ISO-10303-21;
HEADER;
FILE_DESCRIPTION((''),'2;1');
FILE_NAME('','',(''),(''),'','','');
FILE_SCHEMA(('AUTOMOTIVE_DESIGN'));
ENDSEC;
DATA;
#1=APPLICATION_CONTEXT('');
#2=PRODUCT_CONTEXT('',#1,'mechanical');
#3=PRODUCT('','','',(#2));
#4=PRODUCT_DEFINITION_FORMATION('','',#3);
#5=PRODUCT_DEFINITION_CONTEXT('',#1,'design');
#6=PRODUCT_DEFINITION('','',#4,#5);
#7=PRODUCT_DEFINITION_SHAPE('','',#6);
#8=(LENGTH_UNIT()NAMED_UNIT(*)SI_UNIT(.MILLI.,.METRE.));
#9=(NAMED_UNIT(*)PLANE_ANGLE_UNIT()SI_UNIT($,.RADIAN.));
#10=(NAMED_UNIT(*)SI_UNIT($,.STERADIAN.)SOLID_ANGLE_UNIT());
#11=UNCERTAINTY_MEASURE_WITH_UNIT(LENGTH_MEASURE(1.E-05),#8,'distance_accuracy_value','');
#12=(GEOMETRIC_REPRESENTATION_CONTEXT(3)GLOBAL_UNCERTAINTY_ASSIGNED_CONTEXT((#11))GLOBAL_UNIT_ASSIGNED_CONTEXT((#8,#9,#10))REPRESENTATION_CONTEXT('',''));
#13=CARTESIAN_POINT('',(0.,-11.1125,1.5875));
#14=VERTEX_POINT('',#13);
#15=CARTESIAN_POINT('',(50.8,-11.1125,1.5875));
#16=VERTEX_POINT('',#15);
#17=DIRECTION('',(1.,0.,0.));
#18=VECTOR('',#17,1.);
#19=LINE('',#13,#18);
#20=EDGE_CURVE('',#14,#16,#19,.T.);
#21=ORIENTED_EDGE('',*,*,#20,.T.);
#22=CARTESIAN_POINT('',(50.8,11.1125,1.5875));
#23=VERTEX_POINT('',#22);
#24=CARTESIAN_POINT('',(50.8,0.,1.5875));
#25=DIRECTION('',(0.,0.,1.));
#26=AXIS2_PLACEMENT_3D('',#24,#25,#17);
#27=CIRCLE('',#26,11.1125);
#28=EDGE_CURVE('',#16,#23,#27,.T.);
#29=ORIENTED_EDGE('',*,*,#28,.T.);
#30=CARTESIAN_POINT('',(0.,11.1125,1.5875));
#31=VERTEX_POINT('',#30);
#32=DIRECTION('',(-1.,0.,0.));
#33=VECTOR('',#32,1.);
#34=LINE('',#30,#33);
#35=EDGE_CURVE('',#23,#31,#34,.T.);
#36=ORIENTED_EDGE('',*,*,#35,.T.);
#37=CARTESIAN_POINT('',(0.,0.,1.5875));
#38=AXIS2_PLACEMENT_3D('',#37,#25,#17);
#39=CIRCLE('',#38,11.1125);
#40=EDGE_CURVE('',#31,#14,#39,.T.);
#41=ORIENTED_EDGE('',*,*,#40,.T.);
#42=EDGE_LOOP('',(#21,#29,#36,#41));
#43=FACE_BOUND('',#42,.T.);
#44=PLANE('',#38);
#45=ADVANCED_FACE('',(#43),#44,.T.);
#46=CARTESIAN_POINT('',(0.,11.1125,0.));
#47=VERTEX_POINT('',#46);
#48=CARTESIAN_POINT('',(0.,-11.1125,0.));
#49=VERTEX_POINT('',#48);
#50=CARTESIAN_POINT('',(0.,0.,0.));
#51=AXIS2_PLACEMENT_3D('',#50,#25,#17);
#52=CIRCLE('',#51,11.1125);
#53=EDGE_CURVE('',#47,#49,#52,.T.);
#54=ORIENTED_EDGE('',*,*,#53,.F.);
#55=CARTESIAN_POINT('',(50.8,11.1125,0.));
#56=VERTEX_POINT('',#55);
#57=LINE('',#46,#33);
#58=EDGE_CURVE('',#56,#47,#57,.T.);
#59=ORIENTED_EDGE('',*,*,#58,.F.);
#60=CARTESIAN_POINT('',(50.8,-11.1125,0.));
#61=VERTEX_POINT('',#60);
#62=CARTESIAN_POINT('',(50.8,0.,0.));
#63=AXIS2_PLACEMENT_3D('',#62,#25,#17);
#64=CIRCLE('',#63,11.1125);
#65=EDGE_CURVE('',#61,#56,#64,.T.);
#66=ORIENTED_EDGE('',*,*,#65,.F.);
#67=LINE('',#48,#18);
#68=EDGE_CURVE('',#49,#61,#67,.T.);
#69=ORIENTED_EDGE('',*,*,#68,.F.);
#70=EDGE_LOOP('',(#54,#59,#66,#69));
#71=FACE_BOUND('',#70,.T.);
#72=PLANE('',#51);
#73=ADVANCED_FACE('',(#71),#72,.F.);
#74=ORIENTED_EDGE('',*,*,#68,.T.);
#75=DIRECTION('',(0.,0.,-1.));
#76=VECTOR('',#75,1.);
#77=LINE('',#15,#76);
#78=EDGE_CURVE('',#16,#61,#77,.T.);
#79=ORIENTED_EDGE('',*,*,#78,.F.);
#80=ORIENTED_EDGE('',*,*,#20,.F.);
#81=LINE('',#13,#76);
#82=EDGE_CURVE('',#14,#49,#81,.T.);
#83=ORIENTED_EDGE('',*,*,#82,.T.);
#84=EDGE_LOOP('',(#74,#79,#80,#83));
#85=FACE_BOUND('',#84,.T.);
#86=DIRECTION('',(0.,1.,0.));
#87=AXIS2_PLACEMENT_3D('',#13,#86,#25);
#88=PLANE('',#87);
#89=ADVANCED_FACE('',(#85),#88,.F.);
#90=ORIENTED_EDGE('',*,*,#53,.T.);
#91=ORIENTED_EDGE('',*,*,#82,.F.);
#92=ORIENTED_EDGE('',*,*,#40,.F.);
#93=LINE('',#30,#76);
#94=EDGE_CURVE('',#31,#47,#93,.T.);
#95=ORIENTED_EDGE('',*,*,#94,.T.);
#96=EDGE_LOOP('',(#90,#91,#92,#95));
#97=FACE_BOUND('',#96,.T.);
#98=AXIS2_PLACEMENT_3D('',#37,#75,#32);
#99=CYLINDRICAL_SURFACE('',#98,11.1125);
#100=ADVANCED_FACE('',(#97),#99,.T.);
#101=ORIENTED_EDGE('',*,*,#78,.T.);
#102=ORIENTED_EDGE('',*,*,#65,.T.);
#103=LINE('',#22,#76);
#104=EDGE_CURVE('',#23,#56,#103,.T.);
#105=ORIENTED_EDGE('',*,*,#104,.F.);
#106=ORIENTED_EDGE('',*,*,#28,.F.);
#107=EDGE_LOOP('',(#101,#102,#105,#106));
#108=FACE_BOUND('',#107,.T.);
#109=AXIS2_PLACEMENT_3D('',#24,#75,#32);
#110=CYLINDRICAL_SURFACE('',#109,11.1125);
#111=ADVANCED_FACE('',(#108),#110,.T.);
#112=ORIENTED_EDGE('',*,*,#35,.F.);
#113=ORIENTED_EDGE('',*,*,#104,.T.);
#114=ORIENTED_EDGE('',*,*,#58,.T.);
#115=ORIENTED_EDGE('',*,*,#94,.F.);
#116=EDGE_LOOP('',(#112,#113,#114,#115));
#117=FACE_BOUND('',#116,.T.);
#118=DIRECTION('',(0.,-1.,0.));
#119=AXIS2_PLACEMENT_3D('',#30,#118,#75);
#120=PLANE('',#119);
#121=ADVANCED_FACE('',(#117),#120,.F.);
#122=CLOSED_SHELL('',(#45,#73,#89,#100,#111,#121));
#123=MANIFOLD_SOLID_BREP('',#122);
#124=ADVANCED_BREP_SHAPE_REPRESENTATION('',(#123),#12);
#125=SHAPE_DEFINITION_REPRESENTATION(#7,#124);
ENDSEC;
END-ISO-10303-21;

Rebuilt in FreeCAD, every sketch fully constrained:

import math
import FreeCAD as App
import Part
import Sketcher
Q = App.Units.Quantity

doc = App.newDocument("Part")
params = doc.addObject("Spreadsheet::Sheet", "Params")
for row, (alias, value) in enumerate([
    ("sketch1_width", "2 in"),
    ("sketch1_radius", "0.4375 in"),
    ("pad1_length", "0.0625 in"),
], start=1):
    params.set(f"A{row}", alias)
    params.set(f"B{row}", "=" + value)
    params.setAlias(f"B{row}", alias)

body = doc.addObject("PartDesign::Body", "Body")

sketch1 = body.newObject("Sketcher::SketchObject", "Sketch")
sketch1.AttachmentSupport = (doc.getObject("XY_Plane"), [""])
sketch1.MapMode = "FlatFace"
sketch1.addGeometry([
    Part.LineSegment(App.Vector(51, 11, 0), App.Vector(0, 11, 0)),
    Part.ArcOfCircle(Part.Circle(App.Vector(0, 0, 0), App.Vector(0, 0, 1), 11), math.radians(90), math.radians(270)),
    Part.LineSegment(App.Vector(0, -11, 0), App.Vector(51, -11, 0)),
    Part.ArcOfCircle(Part.Circle(App.Vector(51, 0, 0), App.Vector(0, 0, 1), 11), math.radians(-90), math.radians(90)),
], False)
sketch1.addConstraint([
    Sketcher.Constraint("Tangent", 0, 2, 1, 1),
    Sketcher.Constraint("Tangent", 1, 2, 2, 1),
    Sketcher.Constraint("Tangent", 2, 2, 3, 1),
    Sketcher.Constraint("Tangent", 3, 2, 0, 1),
    Sketcher.Constraint("Horizontal", 0),
    Sketcher.Constraint("Horizontal", 2),
    Sketcher.Constraint("Coincident", 1, 3, -1, 1),
    Sketcher.Constraint("DistanceX", 0, 2, 0, 1, Q("2 in")),
    Sketcher.Constraint("Radius", 1, Q("0.4375 in")),
])
sketch1.setExpression("Constraints[7]", "Params.sketch1_width")
sketch1.setExpression("Constraints[8]", "Params.sketch1_radius")
pad1 = body.newObject("PartDesign::Pad", "Pad")
pad1.Profile = sketch1
pad1.setExpression("Length", "Params.pad1_length")

doc.recompute()
